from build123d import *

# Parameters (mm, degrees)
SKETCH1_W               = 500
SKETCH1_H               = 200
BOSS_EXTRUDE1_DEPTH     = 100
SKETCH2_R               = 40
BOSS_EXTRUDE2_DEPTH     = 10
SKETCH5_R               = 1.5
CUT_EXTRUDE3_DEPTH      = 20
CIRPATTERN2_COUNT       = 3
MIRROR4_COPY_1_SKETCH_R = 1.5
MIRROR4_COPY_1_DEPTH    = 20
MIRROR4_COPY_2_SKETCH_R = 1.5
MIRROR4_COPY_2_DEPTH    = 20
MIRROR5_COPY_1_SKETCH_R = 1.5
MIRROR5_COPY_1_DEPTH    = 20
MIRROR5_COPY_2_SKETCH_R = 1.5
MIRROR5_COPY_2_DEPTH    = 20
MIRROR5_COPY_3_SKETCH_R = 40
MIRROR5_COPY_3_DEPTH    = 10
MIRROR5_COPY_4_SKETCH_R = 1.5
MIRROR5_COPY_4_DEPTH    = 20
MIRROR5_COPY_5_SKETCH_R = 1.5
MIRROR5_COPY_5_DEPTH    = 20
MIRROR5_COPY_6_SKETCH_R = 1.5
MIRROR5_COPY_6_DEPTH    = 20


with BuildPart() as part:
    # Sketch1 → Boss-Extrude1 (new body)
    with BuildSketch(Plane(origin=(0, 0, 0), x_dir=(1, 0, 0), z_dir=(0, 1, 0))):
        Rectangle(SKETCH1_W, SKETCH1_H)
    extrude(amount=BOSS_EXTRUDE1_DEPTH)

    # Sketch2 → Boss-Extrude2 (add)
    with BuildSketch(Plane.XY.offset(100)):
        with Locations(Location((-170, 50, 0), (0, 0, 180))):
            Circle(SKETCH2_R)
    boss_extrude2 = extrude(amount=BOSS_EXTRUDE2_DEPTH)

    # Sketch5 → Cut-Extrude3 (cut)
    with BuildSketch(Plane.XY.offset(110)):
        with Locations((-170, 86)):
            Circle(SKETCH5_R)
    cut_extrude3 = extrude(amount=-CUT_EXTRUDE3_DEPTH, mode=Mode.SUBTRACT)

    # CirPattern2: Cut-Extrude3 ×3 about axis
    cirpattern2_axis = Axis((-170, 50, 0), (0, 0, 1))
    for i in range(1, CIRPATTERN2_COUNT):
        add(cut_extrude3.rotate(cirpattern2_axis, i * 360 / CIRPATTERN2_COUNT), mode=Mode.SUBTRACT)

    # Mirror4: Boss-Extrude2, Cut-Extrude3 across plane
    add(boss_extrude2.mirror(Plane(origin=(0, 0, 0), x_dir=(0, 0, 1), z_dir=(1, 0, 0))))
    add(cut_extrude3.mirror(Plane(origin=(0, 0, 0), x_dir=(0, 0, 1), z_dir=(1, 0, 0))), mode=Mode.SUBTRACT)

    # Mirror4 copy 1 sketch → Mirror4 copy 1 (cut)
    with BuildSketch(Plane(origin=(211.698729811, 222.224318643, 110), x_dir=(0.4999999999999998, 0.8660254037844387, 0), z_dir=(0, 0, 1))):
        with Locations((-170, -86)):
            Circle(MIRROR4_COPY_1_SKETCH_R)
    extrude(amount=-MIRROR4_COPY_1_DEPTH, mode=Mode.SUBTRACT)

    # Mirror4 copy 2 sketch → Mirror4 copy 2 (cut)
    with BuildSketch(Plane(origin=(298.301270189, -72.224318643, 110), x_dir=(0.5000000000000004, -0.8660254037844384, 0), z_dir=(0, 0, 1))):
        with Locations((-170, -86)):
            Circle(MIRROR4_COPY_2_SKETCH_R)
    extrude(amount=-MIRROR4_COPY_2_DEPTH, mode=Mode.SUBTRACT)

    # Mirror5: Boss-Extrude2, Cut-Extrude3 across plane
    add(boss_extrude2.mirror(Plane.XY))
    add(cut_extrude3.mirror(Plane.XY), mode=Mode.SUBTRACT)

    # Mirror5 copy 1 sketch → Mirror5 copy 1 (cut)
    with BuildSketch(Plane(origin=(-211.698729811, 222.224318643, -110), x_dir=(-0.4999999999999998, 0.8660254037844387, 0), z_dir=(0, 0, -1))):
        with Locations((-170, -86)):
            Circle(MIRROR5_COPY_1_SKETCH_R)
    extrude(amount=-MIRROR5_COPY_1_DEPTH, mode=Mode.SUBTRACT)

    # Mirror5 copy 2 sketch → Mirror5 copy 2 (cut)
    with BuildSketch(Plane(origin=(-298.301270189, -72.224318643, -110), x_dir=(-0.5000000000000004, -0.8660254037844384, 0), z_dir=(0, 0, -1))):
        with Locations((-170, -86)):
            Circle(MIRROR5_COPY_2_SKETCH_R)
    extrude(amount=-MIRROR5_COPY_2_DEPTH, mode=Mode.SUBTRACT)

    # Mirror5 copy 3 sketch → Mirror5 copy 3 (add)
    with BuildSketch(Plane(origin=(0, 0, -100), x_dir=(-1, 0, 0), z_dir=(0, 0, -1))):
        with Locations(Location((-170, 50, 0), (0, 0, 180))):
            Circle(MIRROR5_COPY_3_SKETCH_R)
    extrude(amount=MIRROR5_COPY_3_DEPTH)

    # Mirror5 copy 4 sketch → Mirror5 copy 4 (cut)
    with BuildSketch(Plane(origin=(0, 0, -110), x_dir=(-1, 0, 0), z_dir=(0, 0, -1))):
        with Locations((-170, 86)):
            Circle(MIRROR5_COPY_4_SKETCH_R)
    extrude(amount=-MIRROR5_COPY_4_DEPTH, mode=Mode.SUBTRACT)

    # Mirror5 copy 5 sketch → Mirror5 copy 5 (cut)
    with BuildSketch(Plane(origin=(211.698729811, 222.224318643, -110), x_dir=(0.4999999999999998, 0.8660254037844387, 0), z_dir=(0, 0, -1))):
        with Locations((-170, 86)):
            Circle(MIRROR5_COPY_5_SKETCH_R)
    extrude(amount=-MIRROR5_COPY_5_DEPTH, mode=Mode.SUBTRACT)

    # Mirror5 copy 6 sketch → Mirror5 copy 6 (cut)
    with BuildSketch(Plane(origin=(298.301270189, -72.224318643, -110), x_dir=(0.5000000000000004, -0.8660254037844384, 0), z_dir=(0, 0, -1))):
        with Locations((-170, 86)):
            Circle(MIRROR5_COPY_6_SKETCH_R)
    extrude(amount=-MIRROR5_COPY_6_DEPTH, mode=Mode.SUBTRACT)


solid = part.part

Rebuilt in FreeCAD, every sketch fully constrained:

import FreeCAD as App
import Part
import Sketcher
from FreeCAD import Vector
Q = App.Units.Quantity

doc = App.newDocument("Part")
body = doc.addObject("PartDesign::Body", "Body")

# Sketch on XZ plane
sketch1 = body.newObject("Sketcher::SketchObject", "Sketch")
sketch1.AttachmentSupport = (doc.getObject("XZ_Plane"), [""])
sketch1.MapMode = "FlatFace"
sketch1.addGeometry([
    Part.LineSegment(Vector(-250, -100, 0), Vector(-250, 100, 0)),
    Part.LineSegment(Vector(-250, 100, 0), Vector(250, 100, 0)),
    Part.LineSegment(Vector(250, 100, 0), Vector(250, -100, 0)),
    Part.LineSegment(Vector(250, -100, 0), Vector(-250, -100, 0)),
], False)
sketch1.addConstraint([
    Sketcher.Constraint("Coincident", 0, 2, 1, 1),
    Sketcher.Constraint("Coincident", 1, 2, 2, 1),
    Sketcher.Constraint("Coincident", 2, 2, 3, 1),
    Sketcher.Constraint("Coincident", 3, 2, 0, 1),
    Sketcher.Constraint("Vertical", 0),
    Sketcher.Constraint("Horizontal", 1),
    Sketcher.Constraint("Vertical", 2),
    Sketcher.Constraint("Horizontal", 3),
    Sketcher.Constraint("Symmetric", 0, 2, 2, 2, -1, 1),
    Sketcher.Constraint("DistanceX", 1, 1, 1, 2, Q("500 mm")),
    Sketcher.Constraint("DistanceY", 0, 1, 0, 2, Q("200 mm")),
])
pad1 = body.newObject("PartDesign::Pad", "Pad")
pad1.Profile = sketch1
pad1.Length = 100
pad1.Reversed = True

# Sketch on XY plane
sketch2 = body.newObject("Sketcher::SketchObject", "Sketch001")
sketch2.AttachmentSupport = (doc.getObject("XY_Plane"), [""])
sketch2.MapMode = "FlatFace"
sketch2.AttachmentOffset = App.Placement(Vector(0, 0, 100), App.Rotation())
sketch2.addGeometry(Part.Circle(Vector(-170, 50, 0), Vector(0, 0, 1), 40), False)
sketch2.addConstraint([
    Sketcher.Constraint("Diameter", 0, Q("80 mm")),
    Sketcher.Constraint("DistanceX", 0, 3, -1, 1, Q("170 mm")),
    Sketcher.Constraint("DistanceY", -1, 1, 0, 3, Q("50 mm")),
])
pad2 = body.newObject("PartDesign::Pad", "Pad001")
pad2.Profile = sketch2
pad2.Length = 10

# Sketch on XY plane
sketch3 = body.newObject("Sketcher::SketchObject", "Sketch002")
sketch3.AttachmentSupport = (doc.getObject("XY_Plane"), [""])
sketch3.MapMode = "FlatFace"
sketch3.AttachmentOffset = App.Placement(Vector(0, 0, 110), App.Rotation())
sketch3.addGeometry(Part.Circle(Vector(-170, 86, 0), Vector(0, 0, 1), 1.5), False)
sketch3.addConstraint([
    Sketcher.Constraint("Diameter", 0, Q("3 mm")),
    Sketcher.Constraint("DistanceX", 0, 3, -1, 1, Q("170 mm")),
    Sketcher.Constraint("DistanceY", -1, 1, 0, 3, Q("86 mm")),
])
pocket1 = body.newObject("PartDesign::Pocket", "Pocket")
pocket1.Profile = sketch3
pocket1.Length = 20
doc.recompute()

datumline = body.newObject("PartDesign::Line", "DatumLine")
datumline.Placement = App.Placement(Vector(-170, 50, 0), App.Rotation(Vector(0, 0, 1), Vector(0, 0, 1)))
polarpattern = body.newObject("PartDesign::PolarPattern", "PolarPattern")
polarpattern.Originals = [pocket1]
polarpattern.Axis = (datumline, [""])
polarpattern.Angle = 360
polarpattern.Occurrences = 3
body.Tip = polarpattern
doc.recompute()

mirrored = body.newObject("PartDesign::Mirrored", "Mirrored")
mirrored.Originals = [pad2, pocket1]
mirrored.MirrorPlane = (doc.getObject("YZ_Plane"), [""])
body.Tip = mirrored

# Sketch on XY plane
sketch4 = body.newObject("Sketcher::SketchObject", "Sketch003")
sketch4.AttachmentSupport = (doc.getObject("XY_Plane"), [""])
sketch4.MapMode = "FlatFace"
sketch4.AttachmentOffset = App.Placement(Vector(0, 0, 110), App.Rotation())
sketch4.addGeometry(Part.Circle(Vector(201.2, 32, 0), Vector(0, 0, 1), 1.5), False)
sketch4.addConstraint([
    Sketcher.Constraint("Diameter", 0, Q("3 mm")),
    Sketcher.Constraint("DistanceY", -1, 1, 0, 3, Q("32 mm")),
    Sketcher.Constraint("DistanceX", -1, 1, 0, 3, Q("201.176915 mm")),
])
pocket2 = body.newObject("PartDesign::Pocket", "Pocket001")
pocket2.Profile = sketch4
pocket2.Length = 20

# Sketch on XY plane
sketch5 = body.newObject("Sketcher::SketchObject", "Sketch004")
sketch5.AttachmentSupport = (doc.getObject("XY_Plane"), [""])
sketch5.MapMode = "FlatFace"
sketch5.AttachmentOffset = App.Placement(Vector(0, 0, 110), App.Rotation())
sketch5.addGeometry(Part.Circle(Vector(138.8, 32, 0), Vector(0, 0, 1), 1.5), False)
sketch5.addConstraint([
    Sketcher.Constraint("Diameter", 0, Q("3 mm")),
    Sketcher.Constraint("DistanceY", -1, 1, 0, 3, Q("32 mm")),
    Sketcher.Constraint("DistanceX", -1, 1, 0, 3, Q("138.823085 mm")),
])
pocket3 = body.newObject("PartDesign::Pocket", "Pocket002")
pocket3.Profile = sketch5
pocket3.Length = 20
doc.recompute()

mirrored2 = body.newObject("PartDesign::Mirrored", "Mirrored001")
mirrored2.Originals = [pad2, pocket1]
mirrored2.MirrorPlane = (doc.getObject("XY_Plane"), [""])
body.Tip = mirrored2

# Sketch on XY plane
sketch6 = body.newObject("Sketcher::SketchObject", "Sketch005")
sketch6.AttachmentSupport = (doc.getObject("XY_Plane"), [""])
sketch6.MapMode = "FlatFace"
sketch6.AttachmentOffset = App.Placement(Vector(0, 0, -110), App.Rotation())
sketch6.addGeometry(Part.Circle(Vector(-201.2, 32, 0), Vector(0, 0, 1), 1.5), False)
sketch6.addConstraint([
    Sketcher.Constraint("Diameter", 0, Q("3 mm")),
    Sketcher.Constraint("DistanceY", -1, 1, 0, 3, Q("32 mm")),
    Sketcher.Constraint("DistanceX", 0, 3, -1, 1, Q("201.176915 mm")),
])
pocket4 = body.newObject("PartDesign::Pocket", "Pocket003")
pocket4.Profile = sketch6
pocket4.Length = 20
pocket4.Reversed = True

# Sketch on XY plane
sketch7 = body.newObject("Sketcher::SketchObject", "Sketch006")
sketch7.AttachmentSupport = (doc.getObject("XY_Plane"), [""])
sketch7.MapMode = "FlatFace"
sketch7.AttachmentOffset = App.Placement(Vector(0, 0, -110), App.Rotation())
sketch7.addGeometry(Part.Circle(Vector(-138.8, 32, 0), Vector(0, 0, 1), 1.5), False)
sketch7.addConstraint([
    Sketcher.Constraint("Diameter", 0, Q("3 mm")),
    Sketcher.Constraint("DistanceY", -1, 1, 0, 3, Q("32 mm")),
    Sketcher.Constraint("DistanceX", 0, 3, -1, 1, Q("138.823085 mm")),
])
pocket5 = body.newObject("PartDesign::Pocket", "Pocket004")
pocket5.Profile = sketch7
pocket5.Length = 20
pocket5.Reversed = True

# Sketch on XY plane
sketch8 = body.newObject("Sketcher::SketchObject", "Sketch007")
sketch8.AttachmentSupport = (doc.getObject("XY_Plane"), [""])
sketch8.MapMode = "FlatFace"
sketch8.AttachmentOffset = App.Placement(Vector(0, 0, -100), App.Rotation())
sketch8.addGeometry(Part.Circle(Vector(170, 50, 0), Vector(0, 0, 1), 40), False)
sketch8.addConstraint([
    Sketcher.Constraint("Diameter", 0, Q("80 mm")),
    Sketcher.Constraint("DistanceX", -1, 1, 0, 3, Q("170 mm")),
    Sketcher.Constraint("DistanceY", -1, 1, 0, 3, Q("50 mm")),
])
pad3 = body.newObject("PartDesign::Pad", "Pad002")
pad3.Profile = sketch8
pad3.Length = 10
pad3.Reversed = True

# Sketch on XY plane
sketch9 = body.newObject("Sketcher::SketchObject", "Sketch008")
sketch9.AttachmentSupport = (doc.getObject("XY_Plane"), [""])
sketch9.MapMode = "FlatFace"
sketch9.AttachmentOffset = App.Placement(Vector(0, 0, -110), App.Rotation())
sketch9.addGeometry(Part.Circle(Vector(170, 86, 0), Vector(0, 0, 1), 1.5), False)
sketch9.addConstraint([
    Sketcher.Constraint("Diameter", 0, Q("3 mm")),
    Sketcher.Constraint("DistanceX", -1, 1, 0, 3, Q("170 mm")),
    Sketcher.Constraint("DistanceY", -1, 1, 0, 3, Q("86 mm")),
])
pocket6 = body.newObject("PartDesign::Pocket", "Pocket005")
pocket6.Profile = sketch9
pocket6.Length = 20
pocket6.Reversed = True

# Sketch on XY plane
sketch10 = body.newObject("Sketcher::SketchObject", "Sketch009")
sketch10.AttachmentSupport = (doc.getObject("XY_Plane"), [""])
sketch10.MapMode = "FlatFace"
sketch10.AttachmentOffset = App.Placement(Vector(0, 0, -110), App.Rotation())
sketch10.addGeometry(Part.Circle(Vector(201.2, 32, 0), Vector(0, 0, 1), 1.5), False)
sketch10.addConstraint([
    Sketcher.Constraint("Diameter", 0, Q("3 mm")),
    Sketcher.Constraint("DistanceY", -1, 1, 0, 3, Q("32 mm")),
    Sketcher.Constraint("DistanceX", -1, 1, 0, 3, Q("201.176915 mm")),
])
pocket7 = body.newObject("PartDesign::Pocket", "Pocket006")
pocket7.Profile = sketch10
pocket7.Length = 20
pocket7.Reversed = True

# Sketch on XY plane
sketch11 = body.newObject("Sketcher::SketchObject", "Sketch010")
sketch11.AttachmentSupport = (doc.getObject("XY_Plane"), [""])
sketch11.MapMode = "FlatFace"
sketch11.AttachmentOffset = App.Placement(Vector(0, 0, -110), App.Rotation())
sketch11.addGeometry(Part.Circle(Vector(138.8, 32, 0), Vector(0, 0, 1), 1.5), False)
sketch11.addConstraint([
    Sketcher.Constraint("Diameter", 0, Q("3 mm")),
    Sketcher.Constraint("DistanceY", -1, 1, 0, 3, Q("32 mm")),
    Sketcher.Constraint("DistanceX", -1, 1, 0, 3, Q("138.823085 mm")),
])
pocket8 = body.newObject("PartDesign::Pocket", "Pocket007")
pocket8.Profile = sketch11
pocket8.Length = 20
pocket8.Reversed = True

doc.recompute()
